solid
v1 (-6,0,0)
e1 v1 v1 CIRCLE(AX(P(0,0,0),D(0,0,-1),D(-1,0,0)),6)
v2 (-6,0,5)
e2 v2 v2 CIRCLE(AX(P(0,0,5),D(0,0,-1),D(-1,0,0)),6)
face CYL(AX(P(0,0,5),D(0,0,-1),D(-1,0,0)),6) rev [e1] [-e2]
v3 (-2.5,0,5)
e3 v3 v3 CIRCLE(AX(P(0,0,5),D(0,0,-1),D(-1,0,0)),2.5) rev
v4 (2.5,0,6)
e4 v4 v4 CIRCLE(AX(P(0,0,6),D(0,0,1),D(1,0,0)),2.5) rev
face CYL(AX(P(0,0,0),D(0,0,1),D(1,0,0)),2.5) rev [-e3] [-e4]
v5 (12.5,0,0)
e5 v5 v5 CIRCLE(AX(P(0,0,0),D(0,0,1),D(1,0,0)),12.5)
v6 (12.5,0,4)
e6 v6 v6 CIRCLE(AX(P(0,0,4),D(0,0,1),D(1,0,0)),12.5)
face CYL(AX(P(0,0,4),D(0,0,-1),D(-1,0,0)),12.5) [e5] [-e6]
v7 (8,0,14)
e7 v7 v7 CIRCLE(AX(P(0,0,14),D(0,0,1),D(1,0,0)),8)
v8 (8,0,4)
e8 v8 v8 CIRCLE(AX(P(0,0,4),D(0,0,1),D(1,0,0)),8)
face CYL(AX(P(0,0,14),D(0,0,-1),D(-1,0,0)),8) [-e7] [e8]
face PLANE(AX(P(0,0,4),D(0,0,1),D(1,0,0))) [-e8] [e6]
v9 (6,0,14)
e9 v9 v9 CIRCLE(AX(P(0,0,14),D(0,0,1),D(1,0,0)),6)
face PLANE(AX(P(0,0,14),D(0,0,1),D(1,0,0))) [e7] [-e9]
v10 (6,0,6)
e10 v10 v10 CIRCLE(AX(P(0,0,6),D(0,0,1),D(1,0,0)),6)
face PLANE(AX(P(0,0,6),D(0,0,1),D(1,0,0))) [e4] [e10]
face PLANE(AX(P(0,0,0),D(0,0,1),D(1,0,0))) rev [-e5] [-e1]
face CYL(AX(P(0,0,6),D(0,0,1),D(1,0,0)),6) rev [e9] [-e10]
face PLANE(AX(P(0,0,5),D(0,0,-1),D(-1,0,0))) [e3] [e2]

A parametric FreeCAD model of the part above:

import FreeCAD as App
import Part
import Sketcher
from FreeCAD import Vector
Q = App.Units.Quantity

doc = App.newDocument("Part")
body = doc.addObject("PartDesign::Body", "Body")

# Sketch on XY plane
sketch1 = doc.addObject("Sketcher::SketchObject", "Sketch")
body.addObject(sketch1)
sketch1.AttachmentSupport = (doc.XY_Plane, [""])
sketch1.MapMode = "FlatFace"
sketch1.addGeometry(Part.Circle(Vector(0, 0, 0), Vector(0, 0, 1), 12), False)
sketch1.addConstraint(Sketcher.Constraint("Coincident", 0, 3, -1, 1))
sketch1.addConstraint(Sketcher.Constraint("Diameter", 0, Q("25 mm")))
pad1 = doc.addObject("PartDesign::Pad", "Pad")
body.addObject(pad1)
pad1.Profile = sketch1
pad1.Length = 4

# Sketch on XY plane
sketch2 = doc.addObject("Sketcher::SketchObject", "Sketch001")
body.addObject(sketch2)
sketch2.AttachmentSupport = (doc.XY_Plane, [""])
sketch2.MapMode = "FlatFace"
sketch2.AttachmentOffset = App.Placement(Vector(0, 0, 4), App.Rotation())
sketch2.addGeometry(Part.Circle(Vector(0, 0, 0), Vector(0, 0, 1), 8), False)
sketch2.addConstraint(Sketcher.Constraint("Coincident", 0, 3, -1, 1))
sketch2.addConstraint(Sketcher.Constraint("Diameter", 0, Q("16 mm")))
pad2 = doc.addObject("PartDesign::Pad", "Pad001")
body.addObject(pad2)
pad2.Profile = sketch2
pad2.Length = 10

# Sketch on XY plane
sketch3 = doc.addObject("Sketcher::SketchObject", "Sketch002")
body.addObject(sketch3)
sketch3.AttachmentSupport = (doc.XY_Plane, [""])
sketch3.MapMode = "FlatFace"
sketch3.AttachmentOffset = App.Placement(Vector(0, 0, 14), App.Rotation())
sketch3.addGeometry(Part.Circle(Vector(0, 0, 0), Vector(0, 0, 1), 2.5), False)
sketch3.addConstraint(Sketcher.Constraint("Coincident", 0, 3, -1, 1))
sketch3.addConstraint(Sketcher.Constraint("Diameter", 0, Q("5 mm")))
pocket1 = doc.addObject("PartDesign::Pocket", "Pocket")
body.addObject(pocket1)
pocket1.Profile = sketch3
pocket1.Type = "ThroughAll"

# Sketch on XY plane
sketch4 = doc.addObject("Sketcher::SketchObject", "Sketch003")
body.addObject(sketch4)
sketch4.AttachmentSupport = (doc.XY_Plane, [""])
sketch4.MapMode = "FlatFace"
sketch4.AttachmentOffset = App.Placement(Vector(0, 0, 14), App.Rotation())
sketch4.addGeometry(Part.Circle(Vector(0, 0, 0), Vector(0, 0, 1), 6), False)
sketch4.addConstraint(Sketcher.Constraint("Coincident", 0, 3, -1, 1))
sketch4.addConstraint(Sketcher.Constraint("Diameter", 0, Q("12 mm")))
pocket2 = doc.addObject("PartDesign::Pocket", "Pocket001")
body.addObject(pocket2)
pocket2.Profile = sketch4
pocket2.Length = 8

# Sketch on XY plane
sketch5 = doc.addObject("Sketcher::SketchObject", "Sketch004")
body.addObject(sketch5)
sketch5.AttachmentSupport = (doc.XY_Plane, [""])
sketch5.MapMode = "FlatFace"
sketch5.AttachmentOffset = App.Placement(Vector(0, 0, 5), App.Rotation())
sketch5.addGeometry(Part.Circle(Vector(0, 0, 0), Vector(0, 0, 1), 6), False)
sketch5.addConstraint(Sketcher.Constraint("Coincident", 0, 3, -1, 1))
sketch5.addConstraint(Sketcher.Constraint("Diameter", 0, Q("12 mm")))
pocket3 = doc.addObject("PartDesign::Pocket", "Pocket002")
body.addObject(pocket3)
pocket3.Profile = sketch5
pocket3.Length = 5

doc.recompute()
